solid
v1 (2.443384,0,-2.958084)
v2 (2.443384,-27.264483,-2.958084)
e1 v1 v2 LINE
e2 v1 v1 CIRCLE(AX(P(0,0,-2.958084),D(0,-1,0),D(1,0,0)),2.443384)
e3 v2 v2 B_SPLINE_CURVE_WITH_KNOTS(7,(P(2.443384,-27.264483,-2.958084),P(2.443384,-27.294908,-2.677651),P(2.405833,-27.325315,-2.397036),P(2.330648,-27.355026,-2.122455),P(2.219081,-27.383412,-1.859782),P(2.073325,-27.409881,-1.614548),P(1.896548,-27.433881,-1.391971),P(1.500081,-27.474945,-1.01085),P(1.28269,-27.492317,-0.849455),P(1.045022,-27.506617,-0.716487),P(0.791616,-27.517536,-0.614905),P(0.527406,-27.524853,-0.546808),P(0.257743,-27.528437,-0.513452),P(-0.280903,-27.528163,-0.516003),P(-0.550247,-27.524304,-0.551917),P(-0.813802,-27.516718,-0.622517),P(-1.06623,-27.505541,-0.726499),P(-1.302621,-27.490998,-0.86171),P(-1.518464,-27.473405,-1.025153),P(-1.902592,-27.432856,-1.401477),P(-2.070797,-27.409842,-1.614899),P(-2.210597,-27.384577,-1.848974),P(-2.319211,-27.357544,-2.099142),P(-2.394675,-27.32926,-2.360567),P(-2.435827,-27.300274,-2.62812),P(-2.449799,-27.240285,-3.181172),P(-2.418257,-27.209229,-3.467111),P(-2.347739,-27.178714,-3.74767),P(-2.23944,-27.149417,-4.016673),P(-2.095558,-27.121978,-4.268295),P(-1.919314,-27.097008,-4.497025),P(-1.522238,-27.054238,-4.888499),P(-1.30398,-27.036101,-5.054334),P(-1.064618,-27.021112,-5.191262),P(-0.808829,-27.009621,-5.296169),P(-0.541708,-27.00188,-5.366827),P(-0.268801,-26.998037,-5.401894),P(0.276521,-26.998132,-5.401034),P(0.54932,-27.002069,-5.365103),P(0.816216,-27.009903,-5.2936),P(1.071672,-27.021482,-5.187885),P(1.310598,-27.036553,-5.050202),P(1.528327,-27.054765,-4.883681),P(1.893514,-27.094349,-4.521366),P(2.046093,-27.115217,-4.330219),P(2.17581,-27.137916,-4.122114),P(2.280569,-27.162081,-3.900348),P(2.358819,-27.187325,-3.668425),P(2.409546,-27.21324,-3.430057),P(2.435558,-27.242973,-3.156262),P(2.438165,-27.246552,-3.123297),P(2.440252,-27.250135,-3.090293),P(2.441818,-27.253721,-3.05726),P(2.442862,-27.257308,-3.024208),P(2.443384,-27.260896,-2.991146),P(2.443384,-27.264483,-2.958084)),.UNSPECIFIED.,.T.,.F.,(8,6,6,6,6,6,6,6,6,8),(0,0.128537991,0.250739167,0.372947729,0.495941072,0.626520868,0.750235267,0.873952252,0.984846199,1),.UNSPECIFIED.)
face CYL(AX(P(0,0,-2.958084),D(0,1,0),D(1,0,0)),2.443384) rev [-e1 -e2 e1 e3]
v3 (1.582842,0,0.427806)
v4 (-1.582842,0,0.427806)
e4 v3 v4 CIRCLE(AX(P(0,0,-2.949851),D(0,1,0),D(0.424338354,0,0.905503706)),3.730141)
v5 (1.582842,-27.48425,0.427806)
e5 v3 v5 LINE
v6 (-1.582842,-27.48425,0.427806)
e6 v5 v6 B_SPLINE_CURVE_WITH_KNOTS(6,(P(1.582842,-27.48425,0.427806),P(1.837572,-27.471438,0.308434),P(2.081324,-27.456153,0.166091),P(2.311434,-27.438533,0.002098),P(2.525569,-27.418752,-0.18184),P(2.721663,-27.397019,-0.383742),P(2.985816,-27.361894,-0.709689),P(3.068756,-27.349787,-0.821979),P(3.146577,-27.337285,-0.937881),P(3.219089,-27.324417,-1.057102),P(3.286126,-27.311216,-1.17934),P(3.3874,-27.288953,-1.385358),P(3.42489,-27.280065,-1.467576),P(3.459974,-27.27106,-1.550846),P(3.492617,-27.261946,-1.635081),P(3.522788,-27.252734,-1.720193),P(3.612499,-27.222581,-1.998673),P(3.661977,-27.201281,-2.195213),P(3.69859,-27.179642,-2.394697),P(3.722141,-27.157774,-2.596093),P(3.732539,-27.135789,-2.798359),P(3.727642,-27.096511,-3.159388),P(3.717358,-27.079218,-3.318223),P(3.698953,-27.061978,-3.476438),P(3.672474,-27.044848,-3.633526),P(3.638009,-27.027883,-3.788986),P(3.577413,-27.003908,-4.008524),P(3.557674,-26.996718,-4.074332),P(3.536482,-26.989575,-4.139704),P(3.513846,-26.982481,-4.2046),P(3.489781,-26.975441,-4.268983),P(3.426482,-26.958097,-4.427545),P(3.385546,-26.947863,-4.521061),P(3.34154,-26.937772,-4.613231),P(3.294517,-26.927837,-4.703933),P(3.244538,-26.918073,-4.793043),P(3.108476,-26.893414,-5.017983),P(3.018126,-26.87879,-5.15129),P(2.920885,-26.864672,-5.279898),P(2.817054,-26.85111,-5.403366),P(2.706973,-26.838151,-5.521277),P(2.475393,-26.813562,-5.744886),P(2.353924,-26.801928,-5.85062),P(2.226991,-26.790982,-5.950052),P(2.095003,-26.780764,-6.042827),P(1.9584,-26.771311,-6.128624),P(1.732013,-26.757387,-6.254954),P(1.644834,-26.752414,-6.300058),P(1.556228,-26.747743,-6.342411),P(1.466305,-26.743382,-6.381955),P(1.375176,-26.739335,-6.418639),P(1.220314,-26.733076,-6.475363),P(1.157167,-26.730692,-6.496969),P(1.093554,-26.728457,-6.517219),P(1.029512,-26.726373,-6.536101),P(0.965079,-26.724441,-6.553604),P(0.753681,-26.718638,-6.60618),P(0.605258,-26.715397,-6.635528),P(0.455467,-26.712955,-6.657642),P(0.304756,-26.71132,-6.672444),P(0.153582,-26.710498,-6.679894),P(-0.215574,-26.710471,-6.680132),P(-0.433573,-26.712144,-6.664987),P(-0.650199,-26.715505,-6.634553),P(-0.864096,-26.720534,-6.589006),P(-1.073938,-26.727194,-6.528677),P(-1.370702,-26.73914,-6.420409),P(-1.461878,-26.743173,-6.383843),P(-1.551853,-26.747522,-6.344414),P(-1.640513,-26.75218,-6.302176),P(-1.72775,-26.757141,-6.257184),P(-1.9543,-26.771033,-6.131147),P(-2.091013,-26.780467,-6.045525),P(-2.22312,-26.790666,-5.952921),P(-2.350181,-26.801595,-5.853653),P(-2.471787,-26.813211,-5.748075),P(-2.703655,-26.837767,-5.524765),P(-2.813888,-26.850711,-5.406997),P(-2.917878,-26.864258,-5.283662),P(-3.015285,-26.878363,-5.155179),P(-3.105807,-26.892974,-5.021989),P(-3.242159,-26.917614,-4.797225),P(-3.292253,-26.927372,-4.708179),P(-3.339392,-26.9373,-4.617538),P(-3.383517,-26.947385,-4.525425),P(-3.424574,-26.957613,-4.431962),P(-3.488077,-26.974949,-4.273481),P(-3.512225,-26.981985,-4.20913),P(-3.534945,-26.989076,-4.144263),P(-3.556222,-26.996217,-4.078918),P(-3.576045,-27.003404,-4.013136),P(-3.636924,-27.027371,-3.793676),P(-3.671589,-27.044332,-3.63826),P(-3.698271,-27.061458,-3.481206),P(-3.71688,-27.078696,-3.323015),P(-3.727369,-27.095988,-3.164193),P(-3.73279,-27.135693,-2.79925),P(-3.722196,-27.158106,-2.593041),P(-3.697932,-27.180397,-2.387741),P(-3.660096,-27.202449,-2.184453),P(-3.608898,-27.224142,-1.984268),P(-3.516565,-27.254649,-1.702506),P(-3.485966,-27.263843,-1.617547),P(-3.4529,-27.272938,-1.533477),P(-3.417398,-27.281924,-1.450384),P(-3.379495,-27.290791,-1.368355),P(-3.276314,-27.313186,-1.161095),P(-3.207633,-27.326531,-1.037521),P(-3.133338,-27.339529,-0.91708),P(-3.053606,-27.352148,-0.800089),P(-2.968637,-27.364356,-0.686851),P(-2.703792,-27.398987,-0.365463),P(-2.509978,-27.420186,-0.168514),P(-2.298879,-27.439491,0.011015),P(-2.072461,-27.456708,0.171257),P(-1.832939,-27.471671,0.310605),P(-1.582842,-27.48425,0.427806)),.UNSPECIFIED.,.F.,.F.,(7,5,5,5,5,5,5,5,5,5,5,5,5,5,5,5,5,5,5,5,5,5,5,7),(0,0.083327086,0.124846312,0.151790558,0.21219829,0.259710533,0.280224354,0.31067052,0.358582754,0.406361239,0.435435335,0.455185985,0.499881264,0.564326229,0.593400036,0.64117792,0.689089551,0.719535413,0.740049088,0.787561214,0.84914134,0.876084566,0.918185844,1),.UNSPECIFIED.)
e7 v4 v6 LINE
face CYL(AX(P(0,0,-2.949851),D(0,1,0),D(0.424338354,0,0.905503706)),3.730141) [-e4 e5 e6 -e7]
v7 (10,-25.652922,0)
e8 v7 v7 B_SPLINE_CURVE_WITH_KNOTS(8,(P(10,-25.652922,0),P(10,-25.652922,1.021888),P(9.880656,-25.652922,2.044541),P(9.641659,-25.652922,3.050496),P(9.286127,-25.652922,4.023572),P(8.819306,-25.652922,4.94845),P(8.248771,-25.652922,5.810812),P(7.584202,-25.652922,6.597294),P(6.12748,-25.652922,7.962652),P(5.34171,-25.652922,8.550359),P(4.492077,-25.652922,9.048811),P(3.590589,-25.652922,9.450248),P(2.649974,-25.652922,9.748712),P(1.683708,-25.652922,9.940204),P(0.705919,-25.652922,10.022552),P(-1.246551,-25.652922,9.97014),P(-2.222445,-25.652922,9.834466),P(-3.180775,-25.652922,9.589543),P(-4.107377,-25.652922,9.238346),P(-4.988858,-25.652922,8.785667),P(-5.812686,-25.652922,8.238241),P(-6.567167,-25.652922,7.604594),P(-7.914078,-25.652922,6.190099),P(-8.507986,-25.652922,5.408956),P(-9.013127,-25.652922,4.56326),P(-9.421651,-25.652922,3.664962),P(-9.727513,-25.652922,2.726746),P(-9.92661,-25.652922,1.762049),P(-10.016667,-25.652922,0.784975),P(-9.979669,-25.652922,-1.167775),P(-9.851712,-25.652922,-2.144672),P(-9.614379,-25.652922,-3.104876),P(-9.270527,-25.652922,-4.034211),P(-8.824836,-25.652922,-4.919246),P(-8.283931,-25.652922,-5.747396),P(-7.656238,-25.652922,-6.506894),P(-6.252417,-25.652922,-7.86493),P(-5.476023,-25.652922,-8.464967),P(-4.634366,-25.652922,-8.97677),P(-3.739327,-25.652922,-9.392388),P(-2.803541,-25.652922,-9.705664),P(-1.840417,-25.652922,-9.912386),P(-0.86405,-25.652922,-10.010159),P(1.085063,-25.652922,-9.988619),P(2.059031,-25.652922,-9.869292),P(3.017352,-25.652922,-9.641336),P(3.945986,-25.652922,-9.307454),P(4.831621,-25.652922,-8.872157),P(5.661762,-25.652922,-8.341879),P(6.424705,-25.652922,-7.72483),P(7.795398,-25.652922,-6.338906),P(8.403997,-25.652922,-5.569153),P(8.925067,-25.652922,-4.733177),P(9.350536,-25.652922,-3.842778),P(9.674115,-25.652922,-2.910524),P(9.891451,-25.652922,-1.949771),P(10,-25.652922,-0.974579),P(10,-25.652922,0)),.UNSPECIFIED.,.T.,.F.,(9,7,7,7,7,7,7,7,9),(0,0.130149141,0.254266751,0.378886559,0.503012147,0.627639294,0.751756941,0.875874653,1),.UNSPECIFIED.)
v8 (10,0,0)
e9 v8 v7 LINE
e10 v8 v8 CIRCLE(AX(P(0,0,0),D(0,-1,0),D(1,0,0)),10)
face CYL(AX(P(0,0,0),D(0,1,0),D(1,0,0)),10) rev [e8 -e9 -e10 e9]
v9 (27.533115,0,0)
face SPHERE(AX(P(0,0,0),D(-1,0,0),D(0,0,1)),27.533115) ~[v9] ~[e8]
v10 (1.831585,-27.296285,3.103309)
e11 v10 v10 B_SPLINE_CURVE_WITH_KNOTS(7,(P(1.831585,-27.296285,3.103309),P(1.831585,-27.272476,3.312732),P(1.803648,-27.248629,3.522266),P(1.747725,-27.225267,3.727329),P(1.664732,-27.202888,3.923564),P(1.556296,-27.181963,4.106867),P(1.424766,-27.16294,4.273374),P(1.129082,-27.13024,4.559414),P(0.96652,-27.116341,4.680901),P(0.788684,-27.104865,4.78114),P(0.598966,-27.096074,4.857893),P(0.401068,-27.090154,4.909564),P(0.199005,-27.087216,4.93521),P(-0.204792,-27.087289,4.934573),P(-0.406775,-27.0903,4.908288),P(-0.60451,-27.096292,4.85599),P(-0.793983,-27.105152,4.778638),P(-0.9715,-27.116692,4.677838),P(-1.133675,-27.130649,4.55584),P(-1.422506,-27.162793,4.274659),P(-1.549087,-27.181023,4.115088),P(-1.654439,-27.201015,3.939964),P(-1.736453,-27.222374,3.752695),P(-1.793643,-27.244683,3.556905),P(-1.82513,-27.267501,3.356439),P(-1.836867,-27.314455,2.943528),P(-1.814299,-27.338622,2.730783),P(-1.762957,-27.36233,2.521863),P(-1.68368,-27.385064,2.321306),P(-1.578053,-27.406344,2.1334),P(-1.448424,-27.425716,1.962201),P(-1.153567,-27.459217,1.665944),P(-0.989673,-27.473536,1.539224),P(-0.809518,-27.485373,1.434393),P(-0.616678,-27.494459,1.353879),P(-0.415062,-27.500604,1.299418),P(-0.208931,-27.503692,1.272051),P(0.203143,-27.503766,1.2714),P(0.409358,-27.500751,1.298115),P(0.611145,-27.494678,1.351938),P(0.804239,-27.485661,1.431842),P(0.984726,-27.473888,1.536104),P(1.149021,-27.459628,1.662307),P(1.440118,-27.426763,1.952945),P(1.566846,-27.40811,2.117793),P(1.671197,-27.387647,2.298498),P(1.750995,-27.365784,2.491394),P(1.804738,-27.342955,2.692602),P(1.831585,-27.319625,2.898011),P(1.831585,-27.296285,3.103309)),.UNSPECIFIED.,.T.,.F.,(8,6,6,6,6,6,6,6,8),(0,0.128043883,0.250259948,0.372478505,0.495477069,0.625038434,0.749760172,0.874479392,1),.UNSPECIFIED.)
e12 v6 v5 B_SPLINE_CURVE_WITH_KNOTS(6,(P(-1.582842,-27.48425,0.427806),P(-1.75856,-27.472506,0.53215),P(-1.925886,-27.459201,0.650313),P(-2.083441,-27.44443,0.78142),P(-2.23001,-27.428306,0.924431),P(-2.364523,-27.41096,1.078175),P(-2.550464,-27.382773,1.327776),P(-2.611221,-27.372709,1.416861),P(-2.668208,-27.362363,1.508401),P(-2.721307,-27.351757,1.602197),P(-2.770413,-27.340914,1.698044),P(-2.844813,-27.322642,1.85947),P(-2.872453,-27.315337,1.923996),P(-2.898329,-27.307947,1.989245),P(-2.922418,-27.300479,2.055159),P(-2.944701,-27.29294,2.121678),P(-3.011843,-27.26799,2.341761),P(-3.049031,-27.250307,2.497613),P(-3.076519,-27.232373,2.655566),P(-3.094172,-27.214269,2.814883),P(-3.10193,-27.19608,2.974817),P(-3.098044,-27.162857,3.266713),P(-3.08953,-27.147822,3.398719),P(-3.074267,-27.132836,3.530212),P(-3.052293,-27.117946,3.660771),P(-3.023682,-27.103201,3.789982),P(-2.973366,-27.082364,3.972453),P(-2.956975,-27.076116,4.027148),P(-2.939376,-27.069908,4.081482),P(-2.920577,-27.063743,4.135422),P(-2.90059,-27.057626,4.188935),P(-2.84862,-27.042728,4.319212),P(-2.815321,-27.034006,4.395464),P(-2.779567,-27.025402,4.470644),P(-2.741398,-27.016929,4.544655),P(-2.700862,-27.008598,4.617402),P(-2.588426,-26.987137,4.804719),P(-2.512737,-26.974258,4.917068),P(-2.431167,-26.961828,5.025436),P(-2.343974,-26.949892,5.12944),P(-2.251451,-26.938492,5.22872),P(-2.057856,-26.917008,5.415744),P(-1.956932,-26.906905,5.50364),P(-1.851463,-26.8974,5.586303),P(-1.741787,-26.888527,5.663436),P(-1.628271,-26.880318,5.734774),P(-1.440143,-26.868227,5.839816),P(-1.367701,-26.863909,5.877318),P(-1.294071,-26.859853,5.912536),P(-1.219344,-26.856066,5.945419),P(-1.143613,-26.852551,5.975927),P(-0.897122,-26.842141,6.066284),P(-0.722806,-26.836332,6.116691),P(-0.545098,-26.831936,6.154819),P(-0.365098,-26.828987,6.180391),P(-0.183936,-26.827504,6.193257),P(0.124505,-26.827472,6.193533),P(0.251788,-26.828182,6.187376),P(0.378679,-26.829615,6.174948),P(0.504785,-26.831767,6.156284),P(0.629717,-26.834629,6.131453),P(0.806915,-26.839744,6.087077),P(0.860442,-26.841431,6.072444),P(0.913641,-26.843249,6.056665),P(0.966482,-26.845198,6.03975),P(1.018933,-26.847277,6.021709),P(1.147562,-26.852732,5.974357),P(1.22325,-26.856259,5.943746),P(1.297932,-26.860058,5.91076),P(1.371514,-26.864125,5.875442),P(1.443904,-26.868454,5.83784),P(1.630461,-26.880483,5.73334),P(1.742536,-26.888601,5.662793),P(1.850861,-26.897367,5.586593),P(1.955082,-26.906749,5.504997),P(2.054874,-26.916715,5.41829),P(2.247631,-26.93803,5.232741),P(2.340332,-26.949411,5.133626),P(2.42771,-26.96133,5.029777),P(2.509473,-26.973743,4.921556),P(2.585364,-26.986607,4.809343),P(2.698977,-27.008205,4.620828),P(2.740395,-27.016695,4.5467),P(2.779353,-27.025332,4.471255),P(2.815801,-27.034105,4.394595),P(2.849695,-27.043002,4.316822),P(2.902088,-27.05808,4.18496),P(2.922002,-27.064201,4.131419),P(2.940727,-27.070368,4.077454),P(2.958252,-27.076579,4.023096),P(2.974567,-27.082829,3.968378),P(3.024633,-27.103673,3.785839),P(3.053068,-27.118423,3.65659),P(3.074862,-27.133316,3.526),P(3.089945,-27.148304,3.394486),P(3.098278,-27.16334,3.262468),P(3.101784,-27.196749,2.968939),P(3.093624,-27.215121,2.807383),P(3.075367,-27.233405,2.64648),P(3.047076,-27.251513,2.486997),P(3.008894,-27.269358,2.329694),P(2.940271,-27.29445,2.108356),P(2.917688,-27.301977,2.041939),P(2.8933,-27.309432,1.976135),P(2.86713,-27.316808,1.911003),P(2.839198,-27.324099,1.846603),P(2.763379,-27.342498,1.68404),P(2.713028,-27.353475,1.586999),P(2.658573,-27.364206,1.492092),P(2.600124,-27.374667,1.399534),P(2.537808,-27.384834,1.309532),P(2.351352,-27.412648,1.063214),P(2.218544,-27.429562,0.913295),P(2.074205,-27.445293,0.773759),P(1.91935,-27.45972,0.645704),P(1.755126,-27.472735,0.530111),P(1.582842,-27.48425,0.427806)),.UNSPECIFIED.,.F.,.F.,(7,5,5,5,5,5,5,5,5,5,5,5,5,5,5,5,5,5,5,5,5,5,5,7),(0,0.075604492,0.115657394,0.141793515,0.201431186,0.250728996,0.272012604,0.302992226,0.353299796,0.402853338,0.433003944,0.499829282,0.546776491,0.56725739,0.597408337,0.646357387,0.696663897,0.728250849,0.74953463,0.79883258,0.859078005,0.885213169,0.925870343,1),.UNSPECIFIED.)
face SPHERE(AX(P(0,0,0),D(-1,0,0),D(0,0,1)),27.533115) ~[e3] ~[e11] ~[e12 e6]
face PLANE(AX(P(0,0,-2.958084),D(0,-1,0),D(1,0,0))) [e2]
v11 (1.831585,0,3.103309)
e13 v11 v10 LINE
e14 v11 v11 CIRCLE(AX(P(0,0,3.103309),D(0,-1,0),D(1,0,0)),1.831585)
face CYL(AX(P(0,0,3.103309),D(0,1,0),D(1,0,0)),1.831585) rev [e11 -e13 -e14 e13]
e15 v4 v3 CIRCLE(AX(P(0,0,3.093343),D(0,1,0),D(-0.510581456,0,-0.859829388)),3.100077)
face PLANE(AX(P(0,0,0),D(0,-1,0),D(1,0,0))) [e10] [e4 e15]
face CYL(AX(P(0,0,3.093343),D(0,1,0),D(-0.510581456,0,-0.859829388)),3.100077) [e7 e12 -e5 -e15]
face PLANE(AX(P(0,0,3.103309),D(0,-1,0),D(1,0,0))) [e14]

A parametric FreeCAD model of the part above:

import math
import FreeCAD as App
import Part
import Sketcher

doc = App.newDocument("Part")
body = doc.addObject("PartDesign::Body", "Body")

sketch1 = body.newObject("Sketcher::SketchObject", "Sketch")
sketch1.AttachmentSupport = (doc.getObject("XZ_Plane"), [""])
sketch1.MapMode = "FlatFace"
sketch1.addGeometry(Part.LineSegment(App.Vector(-27.533115, 0, 0), App.Vector(27.533115, 0, 0)), False)
sketch1.addGeometry(Part.ArcOfCircle(Part.Circle(App.Vector(0, 0, 0), App.Vector(0, 0, 1), 27.533115), math.radians(0), math.radians(180)), False)
sketch1.addConstraint(Sketcher.Constraint("Coincident", 0, 1, 1, 2))
sketch1.addConstraint(Sketcher.Constraint("Coincident", 1, 1, 0, 2))
sketch1.addConstraint(Sketcher.Constraint("Horizontal", 0))
sketch1.addConstraint(Sketcher.Constraint("Coincident", 1, 3, -1, 1))
sketch1.addConstraint(Sketcher.Constraint("PointOnObject", 0, 1, -1))
sketch1.addConstraint(Sketcher.Constraint("Radius", 1, 27.533115))
revolution = body.newObject("PartDesign::Revolution", "Revolution")
revolution.Profile = sketch1
revolution.ReferenceAxis = (sketch1, ["H_Axis"])
revolution.Angle = 360

sketch2 = body.newObject("Sketcher::SketchObject", "Sketch001")
sketch2.AttachmentSupport = (doc.getObject("XZ_Plane"), [""])
sketch2.MapMode = "FlatFace"
sketch2.addGeometry(Part.Circle(App.Vector(0, 0, 0), App.Vector(0, 0, 1), 10), False)
sketch2.addGeometry(Part.ArcOfCircle(Part.Circle(App.Vector(0, -2.949851, 0), App.Vector(0, 0, 1), 3.730141), math.radians(115.108791), math.radians(424.891209)), False)
sketch2.addGeometry(Part.ArcOfCircle(Part.Circle(App.Vector(0, 3.093343, 0), App.Vector(0, 0, 1), 3.100077), math.radians(-59.297432), math.radians(239.297432)), False)
sketch2.addConstraint(Sketcher.Constraint("Coincident", 1, 1, 2, 2))
sketch2.addConstraint(Sketcher.Constraint("Coincident", 2, 1, 1, 2))
sketch2.addConstraint(Sketcher.Constraint("Coincident", 0, 3, -1, 1))
sketch2.addConstraint(Sketcher.Constraint("Symmetric", 1, 1, 2, 1, -2))
sketch2.addConstraint(Sketcher.Constraint("Diameter", 0, 20.0))
sketch2.addConstraint(Sketcher.Constraint("Radius", 1, 3.730141))
sketch2.addConstraint(Sketcher.Constraint("Radius", 2, 3.100077))
sketch2.addConstraint(Sketcher.Constraint("DistanceY", 1, 3, -1, 1, 2.949851))
sketch2.addConstraint(Sketcher.Constraint("DistanceX", 1, 1, -1, 1, 1.582842))
pocket1 = body.newObject("PartDesign::Pocket", "Pocket")
pocket1.Profile = sketch2
pocket1.Type = "ThroughAll"
pocket1.Reversed = True

sketch3 = body.newObject("Sketcher::SketchObject", "Sketch002")
sketch3.AttachmentSupport = (doc.getObject("XZ_Plane"), [""])
sketch3.MapMode = "FlatFace"
sketch3.addGeometry(Part.Circle(App.Vector(0, 3.103309, 0), App.Vector(0, 0, 1), 1.831585), False)
sketch3.addGeometry(Part.Circle(App.Vector(0, -2.958084, 0), App.Vector(0, 0, 1), 2.443384), False)
sketch3.addConstraint(Sketcher.Constraint("PointOnObject", 0, 3, -2))
sketch3.addConstraint(Sketcher.Constraint("PointOnObject", 1, 3, -2))
sketch3.addConstraint(Sketcher.Constraint("Diameter", 0, 3.663171))
sketch3.addConstraint(Sketcher.Constraint("Diameter", 1, 4.886767))
sketch3.addConstraint(Sketcher.Constraint("DistanceY", -1, 1, 0, 3, 3.103309))
sketch3.addConstraint(Sketcher.Constraint("DistanceY", 1, 3, -1, 1, 2.958084))
pocket2 = body.newObject("PartDesign::Pocket", "Pocket001")
pocket2.Profile = sketch3
pocket2.Type = "ThroughAll"
pocket2.Reversed = True

doc.recompute()
